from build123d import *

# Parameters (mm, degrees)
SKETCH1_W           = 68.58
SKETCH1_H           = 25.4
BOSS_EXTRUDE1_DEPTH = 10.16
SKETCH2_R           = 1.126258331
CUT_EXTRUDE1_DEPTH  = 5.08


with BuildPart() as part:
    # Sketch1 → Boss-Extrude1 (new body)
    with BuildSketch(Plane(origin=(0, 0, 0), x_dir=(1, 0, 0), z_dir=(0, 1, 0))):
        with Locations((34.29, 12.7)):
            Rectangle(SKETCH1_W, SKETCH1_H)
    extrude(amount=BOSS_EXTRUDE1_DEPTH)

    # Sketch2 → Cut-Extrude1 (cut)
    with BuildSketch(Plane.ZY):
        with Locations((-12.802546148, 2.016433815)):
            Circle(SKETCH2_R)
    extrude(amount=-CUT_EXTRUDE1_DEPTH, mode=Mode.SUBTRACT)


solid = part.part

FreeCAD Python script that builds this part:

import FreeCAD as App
import Part
import Sketcher

V = App.Vector
Q = App.Units.Quantity


def add_polygon(sketch, points):
    """Adds a closed chain of lines whose ends are joined by coincident constraints."""
    first, n = sketch.GeometryCount, len(points)
    for a, b in zip(points, points[1:] + points[:1]):
        sketch.addGeometry(Part.LineSegment(App.Vector(*a, 0), App.Vector(*b, 0)), False)
    for i in range(n):
        sketch.addConstraint(Sketcher.Constraint("Coincident", first + i, 2, first + (i + 1) % n, 1))

doc = App.newDocument("Part")
body = doc.addObject("PartDesign::Body", "Body")

# Sketch on XZ plane
sketch1 = doc.addObject("Sketcher::SketchObject", "Sketch")
body.addObject(sketch1)
sketch1.AttachmentSupport = (doc.XZ_Plane, [""])
sketch1.MapMode = "FlatFace"
add_polygon(sketch1, [(0, -25), (0, 0), (69, 0), (69, -25)])  # lines 0-3
sketch1.addConstraint(Sketcher.Constraint("Vertical", 0))
sketch1.addConstraint(Sketcher.Constraint("Horizontal", 1))
sketch1.addConstraint(Sketcher.Constraint("Vertical", 2))
sketch1.addConstraint(Sketcher.Constraint("Horizontal", 3))
sketch1.addConstraint(Sketcher.Constraint("Coincident", 0, 2, -1, 1))
sketch1.addConstraint(Sketcher.Constraint("DistanceY", 0, 1, 0, 2, Q("1 in")))
sketch1.addConstraint(Sketcher.Constraint("DistanceX", 1, 1, 1, 2, Q("2.7 in")))
pad1 = doc.addObject("PartDesign::Pad", "Pad")
body.addObject(pad1)
pad1.Profile = sketch1
pad1.Length = Q("0.4 in")
pad1.Reversed = True

# Sketch on YZ plane
sketch2 = doc.addObject("Sketcher::SketchObject", "Sketch001")
body.addObject(sketch2)
sketch2.AttachmentSupport = (doc.YZ_Plane, [""])
sketch2.MapMode = "FlatFace"
sketch2.addGeometry(Part.Circle(V(2, -12.8, 0), V(0, 0, 1), 1.1), False)
sketch2.addConstraint(Sketcher.Constraint("Diameter", 0, Q("2.252517 mm")))
sketch2.addConstraint(Sketcher.Constraint("DistanceX", -1, 1, 0, 3, Q("2.016434 mm")))
sketch2.addConstraint(Sketcher.Constraint("DistanceY", 0, 3, -1, 1, Q("12.802546 mm")))
pocket1 = doc.addObject("PartDesign::Pocket", "Pocket")
body.addObject(pocket1)
pocket1.Profile = sketch2
pocket1.Length = Q("0.2 in")
pocket1.Reversed = True

doc.recompute()
